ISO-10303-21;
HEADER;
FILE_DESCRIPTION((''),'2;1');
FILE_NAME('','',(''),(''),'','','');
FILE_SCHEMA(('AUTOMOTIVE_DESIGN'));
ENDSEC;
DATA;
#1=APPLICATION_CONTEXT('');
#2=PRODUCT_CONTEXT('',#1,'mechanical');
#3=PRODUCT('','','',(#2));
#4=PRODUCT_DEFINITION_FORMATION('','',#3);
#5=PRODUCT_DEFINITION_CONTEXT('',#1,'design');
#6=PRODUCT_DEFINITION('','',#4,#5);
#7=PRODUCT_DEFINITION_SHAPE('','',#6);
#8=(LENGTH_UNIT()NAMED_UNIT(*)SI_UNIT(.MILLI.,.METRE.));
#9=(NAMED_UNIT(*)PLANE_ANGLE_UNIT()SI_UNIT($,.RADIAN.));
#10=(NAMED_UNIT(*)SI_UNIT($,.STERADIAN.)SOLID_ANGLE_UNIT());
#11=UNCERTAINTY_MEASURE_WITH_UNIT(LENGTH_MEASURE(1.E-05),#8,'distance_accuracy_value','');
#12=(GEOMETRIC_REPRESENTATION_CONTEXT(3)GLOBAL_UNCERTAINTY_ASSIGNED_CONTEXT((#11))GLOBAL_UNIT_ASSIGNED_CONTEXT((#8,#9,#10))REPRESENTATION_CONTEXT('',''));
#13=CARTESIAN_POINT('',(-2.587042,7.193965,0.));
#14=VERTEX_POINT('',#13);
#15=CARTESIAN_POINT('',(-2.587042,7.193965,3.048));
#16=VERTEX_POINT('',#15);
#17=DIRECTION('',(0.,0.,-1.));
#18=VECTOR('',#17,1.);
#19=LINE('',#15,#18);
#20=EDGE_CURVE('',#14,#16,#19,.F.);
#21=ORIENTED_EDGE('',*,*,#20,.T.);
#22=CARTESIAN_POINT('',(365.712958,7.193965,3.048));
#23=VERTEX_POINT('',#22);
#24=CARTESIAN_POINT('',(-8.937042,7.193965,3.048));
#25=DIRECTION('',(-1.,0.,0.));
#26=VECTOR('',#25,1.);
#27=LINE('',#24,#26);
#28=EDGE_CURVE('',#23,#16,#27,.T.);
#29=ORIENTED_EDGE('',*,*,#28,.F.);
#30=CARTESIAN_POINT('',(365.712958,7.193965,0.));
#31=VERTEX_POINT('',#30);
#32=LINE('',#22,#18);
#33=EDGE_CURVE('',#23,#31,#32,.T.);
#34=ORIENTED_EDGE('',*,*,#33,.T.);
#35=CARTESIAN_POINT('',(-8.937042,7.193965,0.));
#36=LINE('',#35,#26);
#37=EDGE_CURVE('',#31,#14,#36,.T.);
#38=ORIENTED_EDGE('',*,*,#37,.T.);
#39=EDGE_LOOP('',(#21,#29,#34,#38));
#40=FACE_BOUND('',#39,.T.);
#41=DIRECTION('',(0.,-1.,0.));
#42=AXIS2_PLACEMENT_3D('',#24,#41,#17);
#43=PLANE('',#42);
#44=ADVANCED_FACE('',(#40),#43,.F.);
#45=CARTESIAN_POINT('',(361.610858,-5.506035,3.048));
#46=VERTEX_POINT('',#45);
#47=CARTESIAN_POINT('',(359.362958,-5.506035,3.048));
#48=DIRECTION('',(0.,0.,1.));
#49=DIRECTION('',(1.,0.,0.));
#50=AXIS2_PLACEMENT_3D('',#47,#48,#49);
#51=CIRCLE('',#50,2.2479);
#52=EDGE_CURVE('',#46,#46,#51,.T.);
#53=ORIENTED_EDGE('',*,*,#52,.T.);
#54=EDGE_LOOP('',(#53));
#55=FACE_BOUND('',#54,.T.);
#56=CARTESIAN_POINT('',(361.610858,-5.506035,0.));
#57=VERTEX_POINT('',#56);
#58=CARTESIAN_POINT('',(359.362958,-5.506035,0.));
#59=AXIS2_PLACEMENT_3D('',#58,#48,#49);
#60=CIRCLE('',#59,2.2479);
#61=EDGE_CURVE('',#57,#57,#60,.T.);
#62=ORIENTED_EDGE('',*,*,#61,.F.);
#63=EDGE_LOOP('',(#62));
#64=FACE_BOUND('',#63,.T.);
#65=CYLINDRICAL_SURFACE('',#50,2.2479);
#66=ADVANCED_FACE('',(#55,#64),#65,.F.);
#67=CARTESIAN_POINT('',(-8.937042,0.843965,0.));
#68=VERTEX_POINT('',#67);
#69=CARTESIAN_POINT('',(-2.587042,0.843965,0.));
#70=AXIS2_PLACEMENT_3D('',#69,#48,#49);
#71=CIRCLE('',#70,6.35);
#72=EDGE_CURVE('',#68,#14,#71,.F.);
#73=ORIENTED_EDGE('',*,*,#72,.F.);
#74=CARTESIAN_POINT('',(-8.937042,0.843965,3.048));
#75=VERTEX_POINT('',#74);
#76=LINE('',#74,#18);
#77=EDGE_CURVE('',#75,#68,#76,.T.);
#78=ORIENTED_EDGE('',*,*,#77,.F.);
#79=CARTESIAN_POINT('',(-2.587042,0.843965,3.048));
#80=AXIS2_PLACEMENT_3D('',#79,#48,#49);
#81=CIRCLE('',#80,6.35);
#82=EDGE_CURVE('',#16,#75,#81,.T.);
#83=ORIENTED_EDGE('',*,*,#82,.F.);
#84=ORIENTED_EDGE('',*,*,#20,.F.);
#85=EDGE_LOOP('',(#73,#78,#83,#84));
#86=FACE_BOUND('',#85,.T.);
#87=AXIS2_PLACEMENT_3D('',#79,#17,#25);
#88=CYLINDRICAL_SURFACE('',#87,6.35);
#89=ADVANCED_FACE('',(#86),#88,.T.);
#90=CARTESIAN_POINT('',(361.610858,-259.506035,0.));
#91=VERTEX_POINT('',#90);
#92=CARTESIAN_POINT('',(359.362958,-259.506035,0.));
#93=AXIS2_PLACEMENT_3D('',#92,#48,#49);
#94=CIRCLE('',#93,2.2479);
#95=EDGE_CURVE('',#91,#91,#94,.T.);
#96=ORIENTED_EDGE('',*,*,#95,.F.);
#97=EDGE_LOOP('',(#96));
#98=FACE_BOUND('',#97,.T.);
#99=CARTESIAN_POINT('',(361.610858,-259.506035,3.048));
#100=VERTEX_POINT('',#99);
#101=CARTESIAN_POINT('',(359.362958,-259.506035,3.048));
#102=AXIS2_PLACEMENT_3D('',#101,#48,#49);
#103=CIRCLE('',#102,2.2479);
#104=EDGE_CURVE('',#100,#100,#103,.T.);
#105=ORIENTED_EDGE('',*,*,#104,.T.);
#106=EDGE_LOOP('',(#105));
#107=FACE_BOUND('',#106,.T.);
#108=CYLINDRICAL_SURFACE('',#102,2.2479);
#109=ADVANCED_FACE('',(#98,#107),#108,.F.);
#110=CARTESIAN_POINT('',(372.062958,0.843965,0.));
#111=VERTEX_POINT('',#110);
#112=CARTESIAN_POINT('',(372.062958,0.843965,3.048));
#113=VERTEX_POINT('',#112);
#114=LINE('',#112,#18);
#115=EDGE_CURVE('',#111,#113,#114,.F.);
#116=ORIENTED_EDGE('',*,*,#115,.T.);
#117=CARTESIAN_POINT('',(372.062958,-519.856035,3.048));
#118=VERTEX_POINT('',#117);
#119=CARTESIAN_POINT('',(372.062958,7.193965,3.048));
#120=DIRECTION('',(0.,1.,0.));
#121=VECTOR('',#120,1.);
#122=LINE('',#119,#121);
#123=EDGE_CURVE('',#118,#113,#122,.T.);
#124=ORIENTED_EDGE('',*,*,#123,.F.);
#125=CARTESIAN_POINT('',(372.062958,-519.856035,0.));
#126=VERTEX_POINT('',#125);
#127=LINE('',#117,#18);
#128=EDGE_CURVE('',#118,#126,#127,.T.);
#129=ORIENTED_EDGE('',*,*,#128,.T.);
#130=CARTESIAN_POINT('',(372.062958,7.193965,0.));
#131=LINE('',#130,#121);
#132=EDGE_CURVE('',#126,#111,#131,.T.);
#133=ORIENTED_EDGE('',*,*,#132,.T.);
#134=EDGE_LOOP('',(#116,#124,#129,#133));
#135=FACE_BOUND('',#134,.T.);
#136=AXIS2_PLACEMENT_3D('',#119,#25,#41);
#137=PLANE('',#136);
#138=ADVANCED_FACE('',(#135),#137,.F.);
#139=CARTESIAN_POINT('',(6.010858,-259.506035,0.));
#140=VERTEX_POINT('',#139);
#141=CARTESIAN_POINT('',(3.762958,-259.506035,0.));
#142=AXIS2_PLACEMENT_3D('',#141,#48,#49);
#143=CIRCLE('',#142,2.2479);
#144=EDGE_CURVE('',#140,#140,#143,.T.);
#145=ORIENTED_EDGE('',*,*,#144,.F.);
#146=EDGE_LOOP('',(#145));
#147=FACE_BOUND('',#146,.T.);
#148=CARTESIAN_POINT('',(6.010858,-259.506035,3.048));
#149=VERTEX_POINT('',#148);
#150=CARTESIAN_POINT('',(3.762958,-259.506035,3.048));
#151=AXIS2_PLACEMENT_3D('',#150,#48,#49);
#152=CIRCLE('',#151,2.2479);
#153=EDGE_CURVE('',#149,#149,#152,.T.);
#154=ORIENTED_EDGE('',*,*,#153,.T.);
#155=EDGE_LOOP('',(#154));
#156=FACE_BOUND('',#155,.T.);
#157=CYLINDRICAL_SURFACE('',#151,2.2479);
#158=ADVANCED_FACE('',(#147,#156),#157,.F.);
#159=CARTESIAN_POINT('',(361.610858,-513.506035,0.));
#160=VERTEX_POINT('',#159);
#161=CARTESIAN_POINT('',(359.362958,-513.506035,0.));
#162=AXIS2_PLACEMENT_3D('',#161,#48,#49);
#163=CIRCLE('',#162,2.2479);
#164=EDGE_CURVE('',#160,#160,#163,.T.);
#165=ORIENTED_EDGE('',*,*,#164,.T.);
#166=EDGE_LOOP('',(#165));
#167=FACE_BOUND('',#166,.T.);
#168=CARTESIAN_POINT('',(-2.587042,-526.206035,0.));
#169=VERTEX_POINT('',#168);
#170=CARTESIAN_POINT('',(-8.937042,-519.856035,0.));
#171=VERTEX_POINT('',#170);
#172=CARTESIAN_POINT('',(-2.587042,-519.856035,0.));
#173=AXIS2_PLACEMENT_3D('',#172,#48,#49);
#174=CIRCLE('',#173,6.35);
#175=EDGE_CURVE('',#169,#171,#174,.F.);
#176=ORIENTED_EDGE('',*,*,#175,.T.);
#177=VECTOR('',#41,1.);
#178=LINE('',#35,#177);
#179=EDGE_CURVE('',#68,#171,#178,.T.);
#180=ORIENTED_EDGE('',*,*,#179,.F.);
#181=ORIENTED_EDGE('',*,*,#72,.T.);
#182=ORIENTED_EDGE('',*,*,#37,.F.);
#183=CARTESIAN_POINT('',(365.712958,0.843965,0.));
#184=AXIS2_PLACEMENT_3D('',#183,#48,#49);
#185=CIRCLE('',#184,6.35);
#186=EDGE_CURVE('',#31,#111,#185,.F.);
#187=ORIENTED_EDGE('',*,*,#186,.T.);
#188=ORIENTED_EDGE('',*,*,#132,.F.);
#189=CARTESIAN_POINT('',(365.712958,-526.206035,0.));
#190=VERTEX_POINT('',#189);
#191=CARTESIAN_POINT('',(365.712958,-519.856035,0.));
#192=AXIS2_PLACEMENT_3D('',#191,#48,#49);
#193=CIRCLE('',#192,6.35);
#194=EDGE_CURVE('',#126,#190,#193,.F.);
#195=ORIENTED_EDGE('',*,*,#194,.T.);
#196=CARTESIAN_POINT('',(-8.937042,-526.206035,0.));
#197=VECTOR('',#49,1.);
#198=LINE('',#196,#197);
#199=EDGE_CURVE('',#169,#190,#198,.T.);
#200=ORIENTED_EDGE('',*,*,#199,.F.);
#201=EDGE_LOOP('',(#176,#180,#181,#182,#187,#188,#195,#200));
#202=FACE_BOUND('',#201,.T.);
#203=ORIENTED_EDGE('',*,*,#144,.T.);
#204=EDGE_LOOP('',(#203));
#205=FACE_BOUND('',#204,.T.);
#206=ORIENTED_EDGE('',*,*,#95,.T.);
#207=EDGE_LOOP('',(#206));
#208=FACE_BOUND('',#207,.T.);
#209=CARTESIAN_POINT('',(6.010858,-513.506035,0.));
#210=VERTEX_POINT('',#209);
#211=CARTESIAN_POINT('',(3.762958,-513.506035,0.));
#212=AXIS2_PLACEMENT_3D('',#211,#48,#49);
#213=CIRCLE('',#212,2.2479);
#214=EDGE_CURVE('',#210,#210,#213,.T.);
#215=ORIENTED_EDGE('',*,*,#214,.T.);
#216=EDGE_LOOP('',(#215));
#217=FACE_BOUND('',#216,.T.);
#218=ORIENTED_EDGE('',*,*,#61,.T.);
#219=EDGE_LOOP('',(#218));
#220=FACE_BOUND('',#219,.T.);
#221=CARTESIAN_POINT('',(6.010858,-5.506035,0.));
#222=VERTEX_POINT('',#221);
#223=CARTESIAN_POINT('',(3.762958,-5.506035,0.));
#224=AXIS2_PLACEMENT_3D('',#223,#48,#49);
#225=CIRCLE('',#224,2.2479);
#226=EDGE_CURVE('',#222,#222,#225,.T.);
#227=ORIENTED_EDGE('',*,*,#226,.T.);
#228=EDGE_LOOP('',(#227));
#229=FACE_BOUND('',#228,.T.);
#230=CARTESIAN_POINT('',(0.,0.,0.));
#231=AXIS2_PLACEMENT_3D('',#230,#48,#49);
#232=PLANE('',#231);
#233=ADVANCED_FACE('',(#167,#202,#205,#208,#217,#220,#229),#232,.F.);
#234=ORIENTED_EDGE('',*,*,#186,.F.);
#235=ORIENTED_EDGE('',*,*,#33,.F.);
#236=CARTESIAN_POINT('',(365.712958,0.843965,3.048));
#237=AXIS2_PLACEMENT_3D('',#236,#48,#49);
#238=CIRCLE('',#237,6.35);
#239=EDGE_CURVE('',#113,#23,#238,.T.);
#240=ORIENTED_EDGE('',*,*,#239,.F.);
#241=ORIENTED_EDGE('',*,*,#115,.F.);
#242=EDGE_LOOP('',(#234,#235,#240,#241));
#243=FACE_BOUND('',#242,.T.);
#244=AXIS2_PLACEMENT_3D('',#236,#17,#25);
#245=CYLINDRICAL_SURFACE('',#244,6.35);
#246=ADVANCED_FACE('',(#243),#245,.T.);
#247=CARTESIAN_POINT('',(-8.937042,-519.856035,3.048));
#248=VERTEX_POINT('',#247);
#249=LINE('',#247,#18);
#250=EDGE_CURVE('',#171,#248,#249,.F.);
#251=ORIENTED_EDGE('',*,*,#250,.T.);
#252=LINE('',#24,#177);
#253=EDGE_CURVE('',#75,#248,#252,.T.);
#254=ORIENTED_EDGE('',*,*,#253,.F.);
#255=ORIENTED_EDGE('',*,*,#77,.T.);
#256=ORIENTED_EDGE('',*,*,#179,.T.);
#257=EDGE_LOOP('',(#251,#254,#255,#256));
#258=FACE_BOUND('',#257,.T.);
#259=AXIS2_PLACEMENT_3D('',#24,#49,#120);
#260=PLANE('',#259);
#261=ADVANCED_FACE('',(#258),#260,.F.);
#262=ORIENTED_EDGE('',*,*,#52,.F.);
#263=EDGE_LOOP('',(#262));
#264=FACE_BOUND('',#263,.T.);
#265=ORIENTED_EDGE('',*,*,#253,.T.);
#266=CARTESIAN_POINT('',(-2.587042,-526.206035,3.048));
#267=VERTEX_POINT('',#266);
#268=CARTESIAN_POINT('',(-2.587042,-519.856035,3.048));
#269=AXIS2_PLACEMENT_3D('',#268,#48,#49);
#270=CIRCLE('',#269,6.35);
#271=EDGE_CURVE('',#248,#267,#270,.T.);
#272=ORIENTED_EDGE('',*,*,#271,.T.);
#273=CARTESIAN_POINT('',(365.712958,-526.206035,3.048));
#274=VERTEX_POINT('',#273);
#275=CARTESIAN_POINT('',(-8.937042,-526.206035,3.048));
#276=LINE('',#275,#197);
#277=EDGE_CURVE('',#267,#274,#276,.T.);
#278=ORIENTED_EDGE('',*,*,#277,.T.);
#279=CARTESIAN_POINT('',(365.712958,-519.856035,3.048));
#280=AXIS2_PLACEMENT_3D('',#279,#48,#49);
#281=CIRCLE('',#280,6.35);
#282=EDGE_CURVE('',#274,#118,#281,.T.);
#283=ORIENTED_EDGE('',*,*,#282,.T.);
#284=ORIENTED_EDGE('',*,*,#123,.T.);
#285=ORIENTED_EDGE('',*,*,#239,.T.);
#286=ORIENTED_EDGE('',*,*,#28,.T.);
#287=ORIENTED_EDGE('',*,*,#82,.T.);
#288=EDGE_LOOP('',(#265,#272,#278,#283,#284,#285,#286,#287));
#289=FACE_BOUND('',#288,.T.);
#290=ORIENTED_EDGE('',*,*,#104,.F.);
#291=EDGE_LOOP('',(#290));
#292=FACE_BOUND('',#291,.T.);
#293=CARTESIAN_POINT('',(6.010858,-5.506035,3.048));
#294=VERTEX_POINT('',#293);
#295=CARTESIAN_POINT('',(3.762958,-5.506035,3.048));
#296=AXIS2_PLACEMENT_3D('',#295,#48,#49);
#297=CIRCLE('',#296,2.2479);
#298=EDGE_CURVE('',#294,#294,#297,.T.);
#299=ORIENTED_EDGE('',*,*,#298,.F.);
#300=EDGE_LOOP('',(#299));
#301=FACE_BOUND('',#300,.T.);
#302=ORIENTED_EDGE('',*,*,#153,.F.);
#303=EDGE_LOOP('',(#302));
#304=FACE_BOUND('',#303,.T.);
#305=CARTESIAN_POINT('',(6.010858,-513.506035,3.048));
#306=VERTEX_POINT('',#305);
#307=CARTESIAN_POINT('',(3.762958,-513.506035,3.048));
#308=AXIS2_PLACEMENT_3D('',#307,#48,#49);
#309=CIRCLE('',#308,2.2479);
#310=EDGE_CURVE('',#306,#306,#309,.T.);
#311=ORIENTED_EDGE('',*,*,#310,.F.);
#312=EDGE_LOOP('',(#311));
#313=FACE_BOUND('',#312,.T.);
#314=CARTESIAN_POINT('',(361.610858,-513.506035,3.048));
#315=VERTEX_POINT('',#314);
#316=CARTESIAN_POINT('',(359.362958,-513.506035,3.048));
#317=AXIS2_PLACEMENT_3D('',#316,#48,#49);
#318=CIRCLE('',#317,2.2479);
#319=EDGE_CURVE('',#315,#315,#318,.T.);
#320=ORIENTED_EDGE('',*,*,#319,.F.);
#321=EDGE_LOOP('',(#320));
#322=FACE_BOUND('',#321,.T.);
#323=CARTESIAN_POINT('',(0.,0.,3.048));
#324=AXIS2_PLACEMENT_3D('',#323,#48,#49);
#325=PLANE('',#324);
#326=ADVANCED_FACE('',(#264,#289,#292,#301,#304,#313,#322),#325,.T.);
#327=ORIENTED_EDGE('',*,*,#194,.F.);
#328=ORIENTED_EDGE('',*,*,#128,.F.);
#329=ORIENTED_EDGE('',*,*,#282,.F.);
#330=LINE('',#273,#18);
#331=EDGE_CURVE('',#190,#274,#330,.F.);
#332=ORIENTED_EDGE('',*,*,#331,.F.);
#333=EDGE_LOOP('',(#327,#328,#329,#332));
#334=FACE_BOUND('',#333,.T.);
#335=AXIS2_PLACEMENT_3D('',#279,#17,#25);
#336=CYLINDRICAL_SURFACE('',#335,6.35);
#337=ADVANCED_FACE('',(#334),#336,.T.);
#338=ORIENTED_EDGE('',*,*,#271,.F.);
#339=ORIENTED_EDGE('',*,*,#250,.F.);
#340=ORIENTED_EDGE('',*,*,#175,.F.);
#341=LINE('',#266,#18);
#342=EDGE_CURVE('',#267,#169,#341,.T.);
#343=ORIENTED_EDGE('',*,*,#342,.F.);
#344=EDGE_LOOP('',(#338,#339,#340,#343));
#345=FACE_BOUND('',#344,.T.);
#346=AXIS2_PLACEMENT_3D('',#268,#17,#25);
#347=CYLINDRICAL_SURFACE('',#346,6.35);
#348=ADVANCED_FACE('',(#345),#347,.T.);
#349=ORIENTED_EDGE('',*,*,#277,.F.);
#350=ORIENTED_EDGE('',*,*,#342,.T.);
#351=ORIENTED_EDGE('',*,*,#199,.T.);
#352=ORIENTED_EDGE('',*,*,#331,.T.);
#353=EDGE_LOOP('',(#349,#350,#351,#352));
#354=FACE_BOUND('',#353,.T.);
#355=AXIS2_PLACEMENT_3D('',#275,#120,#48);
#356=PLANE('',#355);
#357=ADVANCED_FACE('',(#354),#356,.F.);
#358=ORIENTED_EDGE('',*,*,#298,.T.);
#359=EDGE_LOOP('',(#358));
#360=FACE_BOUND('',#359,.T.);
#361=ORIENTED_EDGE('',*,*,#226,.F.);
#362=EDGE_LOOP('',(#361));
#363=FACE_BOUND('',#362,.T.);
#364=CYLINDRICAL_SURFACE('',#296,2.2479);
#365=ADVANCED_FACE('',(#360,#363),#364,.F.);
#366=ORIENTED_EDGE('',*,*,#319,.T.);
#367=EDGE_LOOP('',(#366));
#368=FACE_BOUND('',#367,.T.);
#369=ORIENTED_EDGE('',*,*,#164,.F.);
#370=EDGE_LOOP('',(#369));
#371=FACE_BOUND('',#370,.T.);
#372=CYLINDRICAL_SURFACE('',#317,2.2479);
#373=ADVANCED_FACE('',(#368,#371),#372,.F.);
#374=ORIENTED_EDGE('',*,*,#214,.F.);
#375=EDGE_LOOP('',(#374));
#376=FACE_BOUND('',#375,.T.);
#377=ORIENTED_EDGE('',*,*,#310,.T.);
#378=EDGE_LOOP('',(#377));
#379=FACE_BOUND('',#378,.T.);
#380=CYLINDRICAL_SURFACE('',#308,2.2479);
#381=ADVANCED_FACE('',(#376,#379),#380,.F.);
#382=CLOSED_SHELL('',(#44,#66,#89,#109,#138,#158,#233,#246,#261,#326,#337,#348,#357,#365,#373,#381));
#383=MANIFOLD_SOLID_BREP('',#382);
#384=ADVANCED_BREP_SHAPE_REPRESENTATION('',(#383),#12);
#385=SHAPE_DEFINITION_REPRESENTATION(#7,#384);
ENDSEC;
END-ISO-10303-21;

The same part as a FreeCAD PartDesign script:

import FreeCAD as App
import Part
import Sketcher

V = App.Vector
Q = App.Units.Quantity


def edges_at(feature, points):
    """Names of the edges that pass closest to the given points."""
    edges = feature.Shape.Edges
    near = lambda p: min(range(len(edges)), key=lambda i: edges[i].distToShape(Part.Vertex(*p))[0])
    return sorted({f"Edge{near(p) + 1}" for p in points})

doc = App.newDocument("Part")
body = doc.addObject("PartDesign::Body", "Body")

# Sketch on XY plane
sketch1 = body.newObject("Sketcher::SketchObject", "Sketch")
sketch1.AttachmentSupport = (doc.getObject("XY_Plane"), [""])
sketch1.MapMode = "FlatFace"
sketch1.addGeometry(Part.LineSegment(V(-9, 7, 0), V(-9, -526, 0)), False)
sketch1.addGeometry(Part.LineSegment(V(-9, -526, 0), V(372, -526, 0)), False)
sketch1.addGeometry(Part.LineSegment(V(372, -526, 0), V(372, 7, 0)), False)
sketch1.addGeometry(Part.LineSegment(V(372, 7, 0), V(-9, 7, 0)), False)
sketch1.addConstraint(Sketcher.Constraint("Coincident", 0, 2, 1, 1))
sketch1.addConstraint(Sketcher.Constraint("Coincident", 1, 2, 2, 1))
sketch1.addConstraint(Sketcher.Constraint("Coincident", 2, 2, 3, 1))
sketch1.addConstraint(Sketcher.Constraint("Coincident", 3, 2, 0, 1))
sketch1.addConstraint(Sketcher.Constraint("Vertical", 0))
sketch1.addConstraint(Sketcher.Constraint("Horizontal", 1))
sketch1.addConstraint(Sketcher.Constraint("Vertical", 2))
sketch1.addConstraint(Sketcher.Constraint("Horizontal", 3))
sketch1.addConstraint(Sketcher.Constraint("DistanceX", 1, 1, 1, 2, Q("15 in")))
sketch1.addConstraint(Sketcher.Constraint("DistanceY", 0, 2, 0, 1, Q("21 in")))
sketch1.addConstraint(Sketcher.Constraint("DistanceX", 0, 2, -1, 1, 8.937042))
sketch1.addConstraint(Sketcher.Constraint("DistanceY", 0, 2, -1, 1, 526.206035))
pad1 = body.newObject("PartDesign::Pad", "Pad")
pad1.Profile = sketch1
pad1.Length = Q("0.12 in")
doc.recompute()

fillet = body.newObject("PartDesign::Fillet", "Fillet")
fillet.Base = (pad1, edges_at(pad1, [
    (-8.937, 7.194, 1.524),
    (372.063, 7.194, 1.524),
    (372.063, -526.206, 1.524),
    (-8.937, -526.206, 1.524),
]))
fillet.Radius = Q("0.25 in")

# Sketch on XY plane
sketch2 = body.newObject("Sketcher::SketchObject", "Sketch001")
sketch2.AttachmentSupport = (doc.getObject("XY_Plane"), [""])
sketch2.MapMode = "FlatFace"
sketch2.AttachmentOffset = App.Placement(V(0, 0, 0.12 * 25.4), App.Rotation())
sketch2.addGeometry(Part.Circle(V(3.8, -5.5, 0), V(0, 0, 1), 2.2), False)
sketch2.addGeometry(Part.Circle(V(3.8, -259.5, 0), V(0, 0, 1), 2.2), False)
sketch2.addGeometry(Part.Circle(V(3.8, -513.5, 0), V(0, 0, 1), 2.2), False)
sketch2.addGeometry(Part.Circle(V(359.4, -513.5, 0), V(0, 0, 1), 2.2), False)
sketch2.addGeometry(Part.Circle(V(359.4, -259.5, 0), V(0, 0, 1), 2.2), False)
sketch2.addGeometry(Part.Circle(V(359.4, -5.5, 0), V(0, 0, 1), 2.2), False)
sketch2.addConstraint(Sketcher.Constraint("Equal", 0, 1))
sketch2.addConstraint(Sketcher.Constraint("Equal", 1, 2))
sketch2.addConstraint(Sketcher.Constraint("Equal", 2, 3))
sketch2.addConstraint(Sketcher.Constraint("Equal", 3, 4))
sketch2.addConstraint(Sketcher.Constraint("Equal", 4, 5))
sketch2.addConstraint(Sketcher.Constraint("Horizontal", 2, 3, 3, 3))
sketch2.addConstraint(Sketcher.Constraint("Horizontal", 1, 3, 4, 3))
sketch2.addConstraint(Sketcher.Constraint("Horizontal", 0, 3, 5, 3))
sketch2.addConstraint(Sketcher.Constraint("Vertical", 0, 3, 1, 3))
sketch2.addConstraint(Sketcher.Constraint("Vertical", 1, 3, 2, 3))
sketch2.addConstraint(Sketcher.Constraint("Vertical", 3, 3, 4, 3))
sketch2.addConstraint(Sketcher.Constraint("Vertical", 4, 3, 5, 3))
sketch2.addConstraint(Sketcher.Constraint("Diameter", 0, Q("0.177 in")))
sketch2.addConstraint(Sketcher.Constraint("DistanceY", 1, 3, 0, 3, Q("10 in")))
sketch2.addConstraint(Sketcher.Constraint("DistanceY", 2, 3, 1, 3, Q("10 in")))
sketch2.addConstraint(Sketcher.Constraint("DistanceX", 2, 3, 3, 3, Q("14 in")))
sketch2.addConstraint(Sketcher.Constraint("DistanceX", -1, 1, 0, 3, 3.762958))
sketch2.addConstraint(Sketcher.Constraint("DistanceY", 0, 3, -1, 1, 5.506035))
doc.recompute()
hole = body.newObject("PartDesign::Hole", "Hole")
hole.Profile = sketch2
hole.ThreadType = "None"
hole.Diameter = Q("0.177 in")
hole.DepthType = "Dimension"
hole.Depth = Q("0.38 in")
hole.DrillPoint = "Angled"
hole.DrillPointAngle = 118

doc.recompute()
